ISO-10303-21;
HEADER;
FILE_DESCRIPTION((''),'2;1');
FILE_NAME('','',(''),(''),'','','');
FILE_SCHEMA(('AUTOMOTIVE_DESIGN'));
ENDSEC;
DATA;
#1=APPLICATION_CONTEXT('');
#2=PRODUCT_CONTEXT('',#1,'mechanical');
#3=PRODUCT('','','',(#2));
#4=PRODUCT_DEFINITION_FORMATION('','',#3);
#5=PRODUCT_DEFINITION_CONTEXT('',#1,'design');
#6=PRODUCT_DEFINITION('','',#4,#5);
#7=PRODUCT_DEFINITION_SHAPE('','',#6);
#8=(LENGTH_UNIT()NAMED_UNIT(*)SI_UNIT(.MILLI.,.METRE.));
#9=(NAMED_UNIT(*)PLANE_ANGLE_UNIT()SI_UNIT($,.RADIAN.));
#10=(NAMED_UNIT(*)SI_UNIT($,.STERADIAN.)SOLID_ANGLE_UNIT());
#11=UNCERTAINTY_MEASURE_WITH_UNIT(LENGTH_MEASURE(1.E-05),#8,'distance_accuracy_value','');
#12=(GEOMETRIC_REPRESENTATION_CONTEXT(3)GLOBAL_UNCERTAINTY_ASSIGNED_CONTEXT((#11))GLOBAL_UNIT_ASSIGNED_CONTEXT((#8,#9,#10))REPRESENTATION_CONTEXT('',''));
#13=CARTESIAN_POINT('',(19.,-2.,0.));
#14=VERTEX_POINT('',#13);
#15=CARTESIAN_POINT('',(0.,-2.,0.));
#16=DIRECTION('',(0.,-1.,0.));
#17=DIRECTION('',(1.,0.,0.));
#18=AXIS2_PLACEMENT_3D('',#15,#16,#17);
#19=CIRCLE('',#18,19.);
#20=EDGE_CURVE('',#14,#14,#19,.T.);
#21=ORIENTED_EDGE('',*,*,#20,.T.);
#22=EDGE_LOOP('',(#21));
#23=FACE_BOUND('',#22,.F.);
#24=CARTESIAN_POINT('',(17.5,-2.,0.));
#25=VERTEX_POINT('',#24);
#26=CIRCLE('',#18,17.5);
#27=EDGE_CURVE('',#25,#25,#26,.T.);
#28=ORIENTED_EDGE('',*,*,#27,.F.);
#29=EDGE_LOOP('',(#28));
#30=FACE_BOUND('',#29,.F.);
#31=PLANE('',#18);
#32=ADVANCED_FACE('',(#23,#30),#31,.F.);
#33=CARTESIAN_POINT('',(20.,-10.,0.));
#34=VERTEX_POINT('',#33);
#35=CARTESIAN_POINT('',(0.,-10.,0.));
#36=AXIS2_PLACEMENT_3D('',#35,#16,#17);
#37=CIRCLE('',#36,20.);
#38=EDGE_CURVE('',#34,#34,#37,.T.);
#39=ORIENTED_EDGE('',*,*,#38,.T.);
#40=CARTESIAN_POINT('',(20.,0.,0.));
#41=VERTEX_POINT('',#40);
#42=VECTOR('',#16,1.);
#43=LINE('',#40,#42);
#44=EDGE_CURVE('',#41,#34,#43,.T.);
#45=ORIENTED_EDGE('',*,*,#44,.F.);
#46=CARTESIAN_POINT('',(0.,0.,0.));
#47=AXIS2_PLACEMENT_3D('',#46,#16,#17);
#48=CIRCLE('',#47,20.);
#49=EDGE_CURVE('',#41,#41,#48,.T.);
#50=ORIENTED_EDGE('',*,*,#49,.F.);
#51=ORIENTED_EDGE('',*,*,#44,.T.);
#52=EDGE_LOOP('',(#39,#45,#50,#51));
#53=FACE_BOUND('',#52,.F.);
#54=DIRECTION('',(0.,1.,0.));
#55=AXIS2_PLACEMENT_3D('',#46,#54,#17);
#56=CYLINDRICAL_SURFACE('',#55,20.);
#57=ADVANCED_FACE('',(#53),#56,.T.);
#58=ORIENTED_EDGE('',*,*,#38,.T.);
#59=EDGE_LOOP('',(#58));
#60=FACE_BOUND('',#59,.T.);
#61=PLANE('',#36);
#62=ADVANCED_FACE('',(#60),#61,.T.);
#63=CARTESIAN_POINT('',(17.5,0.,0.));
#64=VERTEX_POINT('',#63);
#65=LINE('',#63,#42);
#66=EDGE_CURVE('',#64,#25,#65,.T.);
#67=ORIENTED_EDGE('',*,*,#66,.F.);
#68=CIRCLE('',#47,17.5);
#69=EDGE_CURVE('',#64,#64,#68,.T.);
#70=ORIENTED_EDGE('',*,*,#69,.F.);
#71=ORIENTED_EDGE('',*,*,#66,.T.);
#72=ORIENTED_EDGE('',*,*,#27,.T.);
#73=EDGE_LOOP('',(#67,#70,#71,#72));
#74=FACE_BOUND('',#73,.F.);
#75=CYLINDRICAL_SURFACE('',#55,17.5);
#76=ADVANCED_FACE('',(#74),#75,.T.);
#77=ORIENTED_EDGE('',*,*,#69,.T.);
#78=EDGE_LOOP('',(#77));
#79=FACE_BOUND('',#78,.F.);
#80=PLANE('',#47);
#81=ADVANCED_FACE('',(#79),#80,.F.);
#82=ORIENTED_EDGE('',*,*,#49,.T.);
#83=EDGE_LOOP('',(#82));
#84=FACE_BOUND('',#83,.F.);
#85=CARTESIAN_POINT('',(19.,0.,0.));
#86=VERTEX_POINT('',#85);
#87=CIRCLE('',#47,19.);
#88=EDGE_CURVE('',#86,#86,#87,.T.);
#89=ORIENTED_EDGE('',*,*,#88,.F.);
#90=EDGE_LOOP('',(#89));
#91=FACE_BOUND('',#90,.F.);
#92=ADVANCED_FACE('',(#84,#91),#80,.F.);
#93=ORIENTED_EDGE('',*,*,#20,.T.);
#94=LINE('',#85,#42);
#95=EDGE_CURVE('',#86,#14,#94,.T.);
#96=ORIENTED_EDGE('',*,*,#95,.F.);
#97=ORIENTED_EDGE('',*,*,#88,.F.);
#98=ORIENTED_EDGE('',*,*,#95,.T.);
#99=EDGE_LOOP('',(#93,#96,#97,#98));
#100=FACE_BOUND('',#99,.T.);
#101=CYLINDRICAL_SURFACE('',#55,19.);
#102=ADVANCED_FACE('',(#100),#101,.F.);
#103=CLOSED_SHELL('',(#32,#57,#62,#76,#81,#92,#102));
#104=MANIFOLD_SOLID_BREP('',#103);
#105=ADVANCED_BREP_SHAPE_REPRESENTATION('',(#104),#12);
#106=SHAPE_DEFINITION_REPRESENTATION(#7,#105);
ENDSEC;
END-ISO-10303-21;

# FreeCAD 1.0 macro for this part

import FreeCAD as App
import Part
import Sketcher
from FreeCAD import Vector

doc = App.newDocument("Part")
body = doc.addObject("PartDesign::Body", "Body")

# Sketch on XZ plane
sketch1 = doc.addObject("Sketcher::SketchObject", "Sketch")
body.addObject(sketch1)
sketch1.AttachmentSupport = (doc.XZ_Plane, [""])
sketch1.MapMode = "FlatFace"
sketch1.addGeometry(Part.Circle(Vector(0, 0, 0), Vector(0, 0, 1), 20), False)
sketch1.addConstraint(Sketcher.Constraint("Coincident", 0, 3, -1, 1))
sketch1.addConstraint(Sketcher.Constraint("Diameter", 0, 40.0))
pad1 = doc.addObject("PartDesign::Pad", "Pad")
body.addObject(pad1)
pad1.Profile = sketch1
pad1.Length = 10

# Sketch on XZ plane
sketch2 = doc.addObject("Sketcher::SketchObject", "Sketch001")
body.addObject(sketch2)
sketch2.AttachmentSupport = (doc.XZ_Plane, [""])
sketch2.MapMode = "FlatFace"
sketch2.addGeometry(Part.Circle(Vector(0, 0, 0), Vector(0, 0, 1), 19), False)
sketch2.addGeometry(Part.Circle(Vector(0, 0, 0), Vector(0, 0, 1), 17.5), False)
sketch2.addConstraint(Sketcher.Constraint("Coincident", 0, 3, -1, 1))
sketch2.addConstraint(Sketcher.Constraint("Coincident", 1, 3, -1, 1))
sketch2.addConstraint(Sketcher.Constraint("Diameter", 0, 38.0))
sketch2.addConstraint(Sketcher.Constraint("Diameter", 1, 35.0))
pocket1 = doc.addObject("PartDesign::Pocket", "Pocket")
body.addObject(pocket1)
pocket1.Profile = sketch2
pocket1.Length = 2
pocket1.Reversed = True

doc.recompute()
